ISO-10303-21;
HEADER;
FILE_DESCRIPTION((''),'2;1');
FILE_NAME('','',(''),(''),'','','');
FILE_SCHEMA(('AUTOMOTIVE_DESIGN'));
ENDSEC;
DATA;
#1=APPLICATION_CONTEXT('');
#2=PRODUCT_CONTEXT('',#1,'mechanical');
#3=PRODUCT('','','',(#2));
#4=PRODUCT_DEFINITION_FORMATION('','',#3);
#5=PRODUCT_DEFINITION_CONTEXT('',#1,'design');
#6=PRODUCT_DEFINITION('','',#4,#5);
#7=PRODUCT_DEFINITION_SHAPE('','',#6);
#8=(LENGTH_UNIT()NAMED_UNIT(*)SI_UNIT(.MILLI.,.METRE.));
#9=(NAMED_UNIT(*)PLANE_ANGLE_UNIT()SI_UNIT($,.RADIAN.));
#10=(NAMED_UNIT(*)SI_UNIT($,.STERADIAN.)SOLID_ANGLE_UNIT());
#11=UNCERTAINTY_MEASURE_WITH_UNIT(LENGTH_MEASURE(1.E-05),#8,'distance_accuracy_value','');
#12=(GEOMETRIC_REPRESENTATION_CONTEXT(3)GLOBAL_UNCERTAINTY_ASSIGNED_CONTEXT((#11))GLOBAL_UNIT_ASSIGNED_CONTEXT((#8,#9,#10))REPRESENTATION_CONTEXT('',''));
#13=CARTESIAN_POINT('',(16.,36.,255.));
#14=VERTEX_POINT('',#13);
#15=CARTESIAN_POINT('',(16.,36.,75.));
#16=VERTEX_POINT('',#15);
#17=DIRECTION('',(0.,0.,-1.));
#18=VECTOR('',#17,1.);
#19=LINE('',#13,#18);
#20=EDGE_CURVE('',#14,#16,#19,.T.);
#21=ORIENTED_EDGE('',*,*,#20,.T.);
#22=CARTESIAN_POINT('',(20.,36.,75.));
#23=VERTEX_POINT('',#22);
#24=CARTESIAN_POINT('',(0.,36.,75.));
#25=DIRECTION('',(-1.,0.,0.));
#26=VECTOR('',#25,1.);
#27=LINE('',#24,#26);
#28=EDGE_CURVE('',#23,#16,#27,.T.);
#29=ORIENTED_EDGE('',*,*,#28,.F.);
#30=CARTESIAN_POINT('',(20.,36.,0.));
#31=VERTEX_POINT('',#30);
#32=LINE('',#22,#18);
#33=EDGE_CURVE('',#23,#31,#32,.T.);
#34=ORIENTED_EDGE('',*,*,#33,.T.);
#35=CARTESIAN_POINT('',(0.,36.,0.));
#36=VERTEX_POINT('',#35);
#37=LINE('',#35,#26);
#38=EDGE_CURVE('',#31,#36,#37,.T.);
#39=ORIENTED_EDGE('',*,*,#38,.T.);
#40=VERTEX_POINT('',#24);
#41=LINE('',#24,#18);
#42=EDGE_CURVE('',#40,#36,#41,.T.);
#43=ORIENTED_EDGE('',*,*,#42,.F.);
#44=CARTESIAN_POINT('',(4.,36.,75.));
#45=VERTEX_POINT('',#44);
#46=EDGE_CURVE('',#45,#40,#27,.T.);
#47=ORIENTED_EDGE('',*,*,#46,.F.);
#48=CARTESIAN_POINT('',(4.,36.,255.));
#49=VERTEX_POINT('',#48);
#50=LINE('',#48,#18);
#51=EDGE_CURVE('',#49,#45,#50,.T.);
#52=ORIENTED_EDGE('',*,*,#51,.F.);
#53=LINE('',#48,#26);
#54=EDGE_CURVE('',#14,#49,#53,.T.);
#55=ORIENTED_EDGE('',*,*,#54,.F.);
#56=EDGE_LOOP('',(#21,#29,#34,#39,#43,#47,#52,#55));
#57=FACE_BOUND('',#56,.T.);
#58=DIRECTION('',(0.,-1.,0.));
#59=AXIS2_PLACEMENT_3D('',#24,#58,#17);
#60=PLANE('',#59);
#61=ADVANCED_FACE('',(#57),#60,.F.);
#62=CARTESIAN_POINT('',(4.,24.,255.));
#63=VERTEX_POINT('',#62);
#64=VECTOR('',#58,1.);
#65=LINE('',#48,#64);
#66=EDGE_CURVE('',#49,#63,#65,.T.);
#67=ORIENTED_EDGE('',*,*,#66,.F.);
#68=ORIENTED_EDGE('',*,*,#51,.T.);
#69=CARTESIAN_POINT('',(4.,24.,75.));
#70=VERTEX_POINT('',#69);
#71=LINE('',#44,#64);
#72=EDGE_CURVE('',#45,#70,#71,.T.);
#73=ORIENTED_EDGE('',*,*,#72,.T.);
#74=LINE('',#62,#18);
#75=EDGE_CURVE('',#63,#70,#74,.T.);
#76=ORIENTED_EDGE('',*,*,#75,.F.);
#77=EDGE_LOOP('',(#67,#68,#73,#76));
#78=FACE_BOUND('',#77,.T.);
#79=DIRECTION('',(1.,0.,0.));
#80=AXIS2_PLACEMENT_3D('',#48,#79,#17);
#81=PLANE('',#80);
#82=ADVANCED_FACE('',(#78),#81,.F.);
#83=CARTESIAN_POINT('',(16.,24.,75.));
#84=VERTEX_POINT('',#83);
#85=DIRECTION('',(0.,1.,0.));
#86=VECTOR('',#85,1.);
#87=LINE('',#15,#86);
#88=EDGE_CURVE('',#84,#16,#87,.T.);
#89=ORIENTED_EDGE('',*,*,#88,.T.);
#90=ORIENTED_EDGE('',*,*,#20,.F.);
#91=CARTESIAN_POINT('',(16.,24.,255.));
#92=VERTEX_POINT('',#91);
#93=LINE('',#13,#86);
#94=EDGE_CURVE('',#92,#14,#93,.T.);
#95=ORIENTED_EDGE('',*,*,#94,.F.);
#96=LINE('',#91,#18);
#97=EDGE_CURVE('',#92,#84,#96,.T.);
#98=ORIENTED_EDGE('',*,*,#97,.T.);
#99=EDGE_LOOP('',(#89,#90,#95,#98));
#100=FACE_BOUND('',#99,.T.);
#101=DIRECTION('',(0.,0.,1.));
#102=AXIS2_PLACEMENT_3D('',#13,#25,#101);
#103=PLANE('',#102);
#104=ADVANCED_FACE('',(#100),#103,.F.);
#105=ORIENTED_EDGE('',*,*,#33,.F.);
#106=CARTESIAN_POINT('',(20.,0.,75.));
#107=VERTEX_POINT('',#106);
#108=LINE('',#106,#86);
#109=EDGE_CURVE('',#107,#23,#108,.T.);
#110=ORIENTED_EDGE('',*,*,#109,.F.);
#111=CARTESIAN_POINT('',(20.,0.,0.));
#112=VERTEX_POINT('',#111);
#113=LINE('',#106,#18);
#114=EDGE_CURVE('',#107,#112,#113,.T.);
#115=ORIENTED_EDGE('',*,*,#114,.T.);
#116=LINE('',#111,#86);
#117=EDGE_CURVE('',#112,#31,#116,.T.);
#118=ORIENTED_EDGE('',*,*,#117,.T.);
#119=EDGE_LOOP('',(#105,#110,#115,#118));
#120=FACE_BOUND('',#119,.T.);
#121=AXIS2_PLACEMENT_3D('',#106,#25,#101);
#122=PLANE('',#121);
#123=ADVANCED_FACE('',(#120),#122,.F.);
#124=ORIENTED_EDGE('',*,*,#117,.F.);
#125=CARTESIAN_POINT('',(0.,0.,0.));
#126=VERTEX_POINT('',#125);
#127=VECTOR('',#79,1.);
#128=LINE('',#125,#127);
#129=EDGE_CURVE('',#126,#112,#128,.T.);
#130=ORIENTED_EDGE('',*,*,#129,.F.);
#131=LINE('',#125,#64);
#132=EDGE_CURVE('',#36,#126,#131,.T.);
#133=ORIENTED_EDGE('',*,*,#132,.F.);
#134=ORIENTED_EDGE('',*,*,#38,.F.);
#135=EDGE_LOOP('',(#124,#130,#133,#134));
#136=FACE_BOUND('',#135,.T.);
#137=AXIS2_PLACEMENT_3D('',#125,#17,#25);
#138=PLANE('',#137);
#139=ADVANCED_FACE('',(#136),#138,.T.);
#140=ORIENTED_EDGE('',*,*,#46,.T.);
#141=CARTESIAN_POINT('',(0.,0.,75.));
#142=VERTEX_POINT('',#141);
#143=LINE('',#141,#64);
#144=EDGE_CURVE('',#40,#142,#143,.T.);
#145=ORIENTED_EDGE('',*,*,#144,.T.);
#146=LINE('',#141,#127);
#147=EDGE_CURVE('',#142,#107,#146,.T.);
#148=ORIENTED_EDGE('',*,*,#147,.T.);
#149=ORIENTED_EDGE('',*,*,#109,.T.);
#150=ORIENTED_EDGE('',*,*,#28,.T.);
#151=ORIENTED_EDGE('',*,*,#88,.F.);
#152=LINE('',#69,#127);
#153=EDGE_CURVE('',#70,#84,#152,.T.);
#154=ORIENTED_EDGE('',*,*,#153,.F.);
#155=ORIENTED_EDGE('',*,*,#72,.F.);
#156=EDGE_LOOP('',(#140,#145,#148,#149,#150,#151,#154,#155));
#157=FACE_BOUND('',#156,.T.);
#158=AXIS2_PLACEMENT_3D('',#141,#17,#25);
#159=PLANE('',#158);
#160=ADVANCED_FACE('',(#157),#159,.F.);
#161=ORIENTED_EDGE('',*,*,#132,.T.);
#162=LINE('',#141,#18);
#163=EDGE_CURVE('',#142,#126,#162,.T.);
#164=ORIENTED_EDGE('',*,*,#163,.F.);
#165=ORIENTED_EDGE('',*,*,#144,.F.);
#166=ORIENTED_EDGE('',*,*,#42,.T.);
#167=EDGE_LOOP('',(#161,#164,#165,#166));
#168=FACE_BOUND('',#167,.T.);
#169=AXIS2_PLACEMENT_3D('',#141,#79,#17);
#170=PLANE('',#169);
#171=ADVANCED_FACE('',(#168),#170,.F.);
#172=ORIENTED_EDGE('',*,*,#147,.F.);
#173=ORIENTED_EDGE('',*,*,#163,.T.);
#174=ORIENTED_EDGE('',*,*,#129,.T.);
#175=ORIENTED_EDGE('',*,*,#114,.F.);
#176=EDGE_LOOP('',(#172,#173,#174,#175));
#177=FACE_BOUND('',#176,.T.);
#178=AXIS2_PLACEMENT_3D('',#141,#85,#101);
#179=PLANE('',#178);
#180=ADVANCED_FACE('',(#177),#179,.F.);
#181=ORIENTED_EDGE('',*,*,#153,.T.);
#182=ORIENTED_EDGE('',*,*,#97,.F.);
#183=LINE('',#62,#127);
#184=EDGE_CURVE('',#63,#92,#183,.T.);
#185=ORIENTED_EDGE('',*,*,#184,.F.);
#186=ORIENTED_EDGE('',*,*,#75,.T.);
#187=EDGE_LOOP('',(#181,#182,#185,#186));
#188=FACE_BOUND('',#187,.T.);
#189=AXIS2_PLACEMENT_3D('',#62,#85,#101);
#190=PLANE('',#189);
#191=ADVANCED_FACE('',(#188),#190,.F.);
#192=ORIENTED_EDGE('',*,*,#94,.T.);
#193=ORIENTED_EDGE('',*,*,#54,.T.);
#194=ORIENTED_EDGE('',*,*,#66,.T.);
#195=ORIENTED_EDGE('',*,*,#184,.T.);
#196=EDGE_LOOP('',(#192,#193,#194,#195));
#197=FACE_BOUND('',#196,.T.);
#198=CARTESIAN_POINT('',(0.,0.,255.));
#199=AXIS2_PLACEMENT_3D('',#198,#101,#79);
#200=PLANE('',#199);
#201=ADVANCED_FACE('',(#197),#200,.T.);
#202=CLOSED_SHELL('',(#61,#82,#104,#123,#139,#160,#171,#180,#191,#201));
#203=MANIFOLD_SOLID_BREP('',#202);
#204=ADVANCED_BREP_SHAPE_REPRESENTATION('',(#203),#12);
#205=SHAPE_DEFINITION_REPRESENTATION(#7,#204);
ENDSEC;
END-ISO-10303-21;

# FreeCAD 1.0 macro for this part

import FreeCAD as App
import Part
import Sketcher
from FreeCAD import Vector


def add_polygon(sketch, points):
    """Adds a closed chain of lines whose ends are joined by coincident constraints."""
    first, n = sketch.GeometryCount, len(points)
    for a, b in zip(points, points[1:] + points[:1]):
        sketch.addGeometry(Part.LineSegment(App.Vector(*a, 0), App.Vector(*b, 0)), False)
    for i in range(n):
        sketch.addConstraint(Sketcher.Constraint("Coincident", first + i, 2, first + (i + 1) % n, 1))

doc = App.newDocument("Part")
body = doc.addObject("PartDesign::Body", "Body")

# Sketch on XY plane
sketch1 = body.newObject("Sketcher::SketchObject", "Sketch")
sketch1.AttachmentSupport = (doc.getObject("XY_Plane"), [""])
sketch1.MapMode = "FlatFace"
add_polygon(sketch1, [(0, 36), (0, 0), (20, 0), (20, 36)])  # lines 0-3
sketch1.addConstraint([
    Sketcher.Constraint("Vertical", 0),
    Sketcher.Constraint("Horizontal", 1),
    Sketcher.Constraint("Vertical", 2),
    Sketcher.Constraint("Horizontal", 3),
    Sketcher.Constraint("Coincident", 0, 2, -1, 1),
    Sketcher.Constraint("DistanceX", 1, 1, 1, 2, 20.0),
    Sketcher.Constraint("DistanceY", 0, 2, 0, 1, 36.0),
])
pad1 = body.newObject("PartDesign::Pad", "Pad")
pad1.Profile = sketch1
pad1.Length = 75

# Sketch on XY plane
sketch2 = body.newObject("Sketcher::SketchObject", "Sketch001")
sketch2.AttachmentSupport = (doc.getObject("XY_Plane"), [""])
sketch2.MapMode = "FlatFace"
sketch2.AttachmentOffset = App.Placement(Vector(0, 0, 75), App.Rotation())
add_polygon(sketch2, [(4, 36), (4, 24), (16, 24), (16, 36)])  # lines 0-3
sketch2.addConstraint([
    Sketcher.Constraint("Vertical", 0),
    Sketcher.Constraint("Horizontal", 1),
    Sketcher.Constraint("Vertical", 2),
    Sketcher.Constraint("Horizontal", 3),
    Sketcher.Constraint("Equal", 3, 0),
    Sketcher.Constraint("DistanceX", 1, 1, 1, 2, 12.0),
    Sketcher.Constraint("DistanceX", -1, 1, 0, 2, 4.0),
    Sketcher.Constraint("DistanceY", -1, 1, 0, 2, 24.0),
])
pad2 = body.newObject("PartDesign::Pad", "Pad001")
pad2.Profile = sketch2
pad2.Length = 180

doc.recompute()
